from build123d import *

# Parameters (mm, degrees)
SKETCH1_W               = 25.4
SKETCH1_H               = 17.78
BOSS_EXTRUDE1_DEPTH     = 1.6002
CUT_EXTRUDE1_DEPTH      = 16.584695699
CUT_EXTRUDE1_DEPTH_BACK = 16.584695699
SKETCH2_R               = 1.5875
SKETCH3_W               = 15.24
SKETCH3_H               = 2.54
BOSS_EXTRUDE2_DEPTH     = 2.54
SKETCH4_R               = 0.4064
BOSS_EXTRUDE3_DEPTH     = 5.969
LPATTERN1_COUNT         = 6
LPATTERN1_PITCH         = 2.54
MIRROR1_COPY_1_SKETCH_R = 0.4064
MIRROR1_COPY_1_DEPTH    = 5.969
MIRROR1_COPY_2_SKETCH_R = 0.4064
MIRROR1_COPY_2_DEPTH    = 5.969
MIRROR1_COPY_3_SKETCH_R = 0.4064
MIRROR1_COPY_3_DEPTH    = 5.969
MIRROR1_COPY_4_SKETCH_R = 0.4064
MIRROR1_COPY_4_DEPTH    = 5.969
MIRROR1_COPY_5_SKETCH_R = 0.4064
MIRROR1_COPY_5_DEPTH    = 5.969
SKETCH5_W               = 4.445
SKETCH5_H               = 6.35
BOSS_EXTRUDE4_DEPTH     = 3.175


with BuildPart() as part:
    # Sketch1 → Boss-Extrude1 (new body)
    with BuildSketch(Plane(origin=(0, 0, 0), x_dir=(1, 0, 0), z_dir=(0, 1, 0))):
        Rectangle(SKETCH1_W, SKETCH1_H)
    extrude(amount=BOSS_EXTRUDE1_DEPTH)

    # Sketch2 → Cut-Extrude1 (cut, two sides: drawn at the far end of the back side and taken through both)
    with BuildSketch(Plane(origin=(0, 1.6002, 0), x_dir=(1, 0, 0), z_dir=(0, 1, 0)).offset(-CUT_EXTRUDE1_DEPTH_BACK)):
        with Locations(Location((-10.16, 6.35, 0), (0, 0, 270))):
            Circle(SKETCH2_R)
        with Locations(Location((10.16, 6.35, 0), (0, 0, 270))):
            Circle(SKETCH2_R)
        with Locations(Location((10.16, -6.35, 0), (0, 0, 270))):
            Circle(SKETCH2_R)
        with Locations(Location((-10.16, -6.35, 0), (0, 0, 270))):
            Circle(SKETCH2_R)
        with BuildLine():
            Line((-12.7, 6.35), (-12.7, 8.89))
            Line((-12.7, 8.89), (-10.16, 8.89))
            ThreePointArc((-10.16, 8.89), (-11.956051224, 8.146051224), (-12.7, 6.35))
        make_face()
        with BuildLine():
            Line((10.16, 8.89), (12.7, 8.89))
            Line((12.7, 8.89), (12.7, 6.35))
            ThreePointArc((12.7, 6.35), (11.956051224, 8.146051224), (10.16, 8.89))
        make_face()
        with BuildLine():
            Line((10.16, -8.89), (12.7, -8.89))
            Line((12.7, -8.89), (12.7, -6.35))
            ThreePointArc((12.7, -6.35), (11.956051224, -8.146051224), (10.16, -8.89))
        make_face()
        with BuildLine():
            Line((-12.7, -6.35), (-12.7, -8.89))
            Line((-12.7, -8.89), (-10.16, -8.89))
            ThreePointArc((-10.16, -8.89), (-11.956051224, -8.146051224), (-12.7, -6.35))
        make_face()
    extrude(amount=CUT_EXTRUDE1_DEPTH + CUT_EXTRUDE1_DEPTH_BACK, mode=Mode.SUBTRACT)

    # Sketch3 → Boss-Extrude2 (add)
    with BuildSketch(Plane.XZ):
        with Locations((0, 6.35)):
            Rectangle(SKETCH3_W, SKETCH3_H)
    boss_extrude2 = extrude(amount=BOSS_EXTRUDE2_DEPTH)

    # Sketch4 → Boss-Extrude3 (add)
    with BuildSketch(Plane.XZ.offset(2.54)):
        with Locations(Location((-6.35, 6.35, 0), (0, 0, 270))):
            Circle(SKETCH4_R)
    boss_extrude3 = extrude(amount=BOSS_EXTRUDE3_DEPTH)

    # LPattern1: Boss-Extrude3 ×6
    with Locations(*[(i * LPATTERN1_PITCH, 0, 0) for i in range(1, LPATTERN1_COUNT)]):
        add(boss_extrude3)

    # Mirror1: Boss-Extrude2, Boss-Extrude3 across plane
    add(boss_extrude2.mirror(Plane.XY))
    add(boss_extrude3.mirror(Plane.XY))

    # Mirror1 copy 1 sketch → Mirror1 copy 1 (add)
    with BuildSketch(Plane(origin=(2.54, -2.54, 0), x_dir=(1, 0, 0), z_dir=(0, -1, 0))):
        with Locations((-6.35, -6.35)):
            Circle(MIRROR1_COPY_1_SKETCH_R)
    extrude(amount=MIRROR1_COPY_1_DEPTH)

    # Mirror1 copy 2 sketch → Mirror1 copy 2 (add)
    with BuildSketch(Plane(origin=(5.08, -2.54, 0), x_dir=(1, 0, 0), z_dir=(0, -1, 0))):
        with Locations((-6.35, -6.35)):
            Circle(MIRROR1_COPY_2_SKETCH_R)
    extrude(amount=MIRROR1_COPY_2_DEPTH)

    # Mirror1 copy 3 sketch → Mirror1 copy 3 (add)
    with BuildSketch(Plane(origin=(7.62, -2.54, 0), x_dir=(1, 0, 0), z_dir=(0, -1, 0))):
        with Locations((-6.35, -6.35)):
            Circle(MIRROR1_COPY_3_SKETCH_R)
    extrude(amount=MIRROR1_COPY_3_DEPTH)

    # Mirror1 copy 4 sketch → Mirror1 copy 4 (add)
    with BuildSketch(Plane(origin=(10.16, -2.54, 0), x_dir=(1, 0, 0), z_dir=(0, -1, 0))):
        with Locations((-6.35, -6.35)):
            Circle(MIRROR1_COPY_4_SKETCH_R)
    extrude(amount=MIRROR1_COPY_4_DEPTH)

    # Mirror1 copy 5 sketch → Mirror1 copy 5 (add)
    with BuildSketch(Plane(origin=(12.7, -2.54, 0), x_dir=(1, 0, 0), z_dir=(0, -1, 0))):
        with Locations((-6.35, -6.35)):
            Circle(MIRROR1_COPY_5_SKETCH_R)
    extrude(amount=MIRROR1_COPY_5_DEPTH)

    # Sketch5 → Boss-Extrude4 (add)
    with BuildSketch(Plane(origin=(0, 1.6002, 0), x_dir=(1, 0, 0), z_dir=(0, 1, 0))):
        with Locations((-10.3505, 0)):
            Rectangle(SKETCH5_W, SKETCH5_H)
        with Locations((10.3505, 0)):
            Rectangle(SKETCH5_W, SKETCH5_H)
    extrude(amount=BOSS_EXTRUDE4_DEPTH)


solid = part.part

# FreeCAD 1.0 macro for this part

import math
import FreeCAD as App
import Part
import Sketcher

V = App.Vector
Q = App.Units.Quantity


def add_polygon(sketch, points):
    """Adds a closed chain of lines whose ends are joined by coincident constraints."""
    first, n = sketch.GeometryCount, len(points)
    for a, b in zip(points, points[1:] + points[:1]):
        sketch.addGeometry(Part.LineSegment(App.Vector(*a, 0), App.Vector(*b, 0)), False)
    for i in range(n):
        sketch.addConstraint(Sketcher.Constraint("Coincident", first + i, 2, first + (i + 1) % n, 1))

doc = App.newDocument("Part")
body = doc.addObject("PartDesign::Body", "Body")

# Sketch on XZ plane
sketch1 = doc.addObject("Sketcher::SketchObject", "Sketch")
body.addObject(sketch1)
sketch1.AttachmentSupport = (doc.XZ_Plane, [""])
sketch1.MapMode = "FlatFace"
add_polygon(sketch1, [(-13, -9), (-13, 9), (13, 9), (13, -9)])  # lines 0-3
sketch1.addConstraint([
    Sketcher.Constraint("Vertical", 0),
    Sketcher.Constraint("Horizontal", 1),
    Sketcher.Constraint("Vertical", 2),
    Sketcher.Constraint("Horizontal", 3),
    Sketcher.Constraint("Symmetric", 0, 2, 2, 2, -1, 1),
    Sketcher.Constraint("DistanceX", 1, 1, 1, 2, Q("1 in")),
    Sketcher.Constraint("DistanceY", 0, 1, 0, 2, Q("0.7 in")),
])
pad1 = doc.addObject("PartDesign::Pad", "Pad")
body.addObject(pad1)
pad1.Profile = sketch1
pad1.Length = Q("0.063 in")
pad1.Reversed = True

# Sketch on XZ plane
sketch2 = doc.addObject("Sketcher::SketchObject", "Sketch001")
body.addObject(sketch2)
sketch2.AttachmentSupport = (doc.XZ_Plane, [""])
sketch2.MapMode = "FlatFace"
sketch2.AttachmentOffset = App.Placement(V(0, 0, -0.063 * 25.4), App.Rotation())
sketch2.addGeometry([
    Part.Circle(V(-10.2, -6.3, 0), V(0, 0, 1), 1.6),  # 0
    Part.Circle(V(10.2, -6.3, 0), V(0, 0, 1), 1.6),  # 1
    Part.Circle(V(10.2, 6.3, 0), V(0, 0, 1), 1.6),  # 2
    Part.Circle(V(-10.2, 6.3, 0), V(0, 0, 1), 1.6),  # 3
    Part.LineSegment(V(-12.7, -8.9, 0), V(-12.7, -6.3, 0)),  # 4
    Part.ArcOfCircle(Part.Circle(V(-10.2, -6.3, 0), V(0, 0, 1), 2.5), math.radians(-180), math.radians(-90)),  # 5
    Part.LineSegment(V(-10.2, -8.9, 0), V(-12.7, -8.9, 0)),  # 6
    Part.LineSegment(V(12.7, -8.9, 0), V(10.2, -8.9, 0)),  # 7
    Part.ArcOfCircle(Part.Circle(V(10.2, -6.3, 0), V(0, 0, 1), 2.5), math.radians(-90), math.radians(0)),  # 8
    Part.LineSegment(V(12.7, -6.3, 0), V(12.7, -8.9, 0)),  # 9
    Part.LineSegment(V(10.2, 8.9, 0), V(12.7, 8.9, 0)),  # 10
    Part.LineSegment(V(12.7, 8.9, 0), V(12.7, 6.3, 0)),  # 11
    Part.ArcOfCircle(Part.Circle(V(10.2, 6.3, 0), V(0, 0, 1), 2.5), math.radians(0), math.radians(90)),  # 12
    Part.LineSegment(V(-12.7, 6.3, 0), V(-12.7, 8.9, 0)),  # 13
    Part.LineSegment(V(-12.7, 8.9, 0), V(-10.2, 8.9, 0)),  # 14
    Part.ArcOfCircle(Part.Circle(V(-10.2, 6.3, 0), V(0, 0, 1), 2.5), math.radians(90), math.radians(180)),  # 15
], False)
sketch2.addConstraint([
    Sketcher.Constraint("Tangent", 4, 2, 5, 1),
    Sketcher.Constraint("Tangent", 5, 2, 6, 1),
    Sketcher.Constraint("Coincident", 6, 2, 4, 1),
    Sketcher.Constraint("Tangent", 7, 2, 8, 1),
    Sketcher.Constraint("Tangent", 8, 2, 9, 1),
    Sketcher.Constraint("Coincident", 9, 2, 7, 1),
    Sketcher.Constraint("Coincident", 10, 2, 11, 1),
    Sketcher.Constraint("Tangent", 11, 2, 12, 1),
    Sketcher.Constraint("Tangent", 12, 2, 10, 1),
    Sketcher.Constraint("Coincident", 13, 2, 14, 1),
    Sketcher.Constraint("Tangent", 14, 2, 15, 1),
    Sketcher.Constraint("Tangent", 15, 2, 13, 1),
    Sketcher.Constraint("Vertical", 4),
    Sketcher.Constraint("Horizontal", 6),
    Sketcher.Constraint("Horizontal", 7),
    Sketcher.Constraint("Vertical", 9),
    Sketcher.Constraint("Horizontal", 10),
    Sketcher.Constraint("Vertical", 11),
    Sketcher.Constraint("Vertical", 13),
    Sketcher.Constraint("Horizontal", 14),
    Sketcher.Constraint("Coincident", 5, 3, 0, 3),
    Sketcher.Constraint("Coincident", 8, 3, 1, 3),
    Sketcher.Constraint("Coincident", 12, 3, 2, 3),
    Sketcher.Constraint("Coincident", 15, 3, 3, 3),
    Sketcher.Constraint("Equal", 0, 1),
    Sketcher.Constraint("Equal", 1, 2),
    Sketcher.Constraint("Equal", 2, 3),
    Sketcher.Constraint("Equal", 5, 8),
    Sketcher.Constraint("Equal", 8, 12),
    Sketcher.Constraint("Equal", 12, 15),
    Sketcher.Constraint("Symmetric", 0, 3, 2, 3, -1, 1),
    Sketcher.Constraint("Symmetric", 1, 3, 3, 3, -1, 1),
    Sketcher.Constraint("Symmetric", 0, 3, 1, 3, -2),
    Sketcher.Constraint("Radius", 5, Q("0.1 in")),
    Sketcher.Constraint("Diameter", 0, Q("0.125 in")),
    Sketcher.Constraint("DistanceX", 0, 3, -1, 1, Q("0.4 in")),
    Sketcher.Constraint("DistanceY", 1, 3, 2, 3, Q("0.5 in")),
])
pocket1 = doc.addObject("PartDesign::Pocket", "Pocket")
body.addObject(pocket1)
pocket1.Profile = sketch2
pocket1.Type = "ThroughAll"
pocket1.Midplane = True

# Sketch on XZ plane
sketch3 = doc.addObject("Sketcher::SketchObject", "Sketch002")
body.addObject(sketch3)
sketch3.AttachmentSupport = (doc.XZ_Plane, [""])
sketch3.MapMode = "FlatFace"
add_polygon(sketch3, [(-7.6, 7.6), (-7.6, 5.1), (7.6, 5.1), (7.6, 7.6)])  # lines 0-3
sketch3.addConstraint([
    Sketcher.Constraint("Vertical", 0),
    Sketcher.Constraint("Horizontal", 1),
    Sketcher.Constraint("Vertical", 2),
    Sketcher.Constraint("Horizontal", 3),
    Sketcher.Constraint("DistanceX", 1, 1, 1, 2, Q("0.6 in")),
    Sketcher.Constraint("DistanceY", 0, 2, 0, 1, Q("0.1 in")),
    Sketcher.Constraint("DistanceX", 0, 2, -1, 1, Q("0.3 in")),
    Sketcher.Constraint("DistanceY", -1, 1, 0, 2, Q("0.2 in")),
])
pad2 = doc.addObject("PartDesign::Pad", "Pad001")
body.addObject(pad2)
pad2.Profile = sketch3
pad2.Length = Q("0.1 in")

# Sketch on XZ plane
sketch4 = doc.addObject("Sketcher::SketchObject", "Sketch003")
body.addObject(sketch4)
sketch4.AttachmentSupport = (doc.XZ_Plane, [""])
sketch4.MapMode = "FlatFace"
sketch4.AttachmentOffset = App.Placement(V(0, 0, 0.1 * 25.4), App.Rotation())
sketch4.addGeometry(Part.Circle(V(-6.35, 6.35, 0), V(0, 0, 1), 0.41), False)
sketch4.addConstraint([
    Sketcher.Constraint("Diameter", 0, Q("0.032 in")),
    Sketcher.Constraint("DistanceX", 0, 3, -1, 1, Q("0.25 in")),
    Sketcher.Constraint("DistanceY", -1, 1, 0, 3, Q("0.25 in")),
])
pad3 = doc.addObject("PartDesign::Pad", "Pad002")
body.addObject(pad3)
pad3.Profile = sketch4
pad3.Length = Q("0.235 in")
doc.recompute()

linearpattern = doc.addObject("PartDesign::LinearPattern", "LinearPattern")
body.addObject(linearpattern)
linearpattern.Originals = [pad3]
linearpattern.Direction = (doc.X_Axis, [""])
linearpattern.Mode = "offset"
linearpattern.Offset = Q("0.1 in")
linearpattern.Occurrences = 6
body.Tip = linearpattern
doc.recompute()

mirrored = doc.addObject("PartDesign::Mirrored", "Mirrored")
body.addObject(mirrored)
mirrored.Originals = [pad2, pad3]
mirrored.MirrorPlane = (doc.XY_Plane, [""])
body.Tip = mirrored

# Sketch on XZ plane
sketch5 = doc.addObject("Sketcher::SketchObject", "Sketch004")
body.addObject(sketch5)
sketch5.AttachmentSupport = (doc.XZ_Plane, [""])
sketch5.MapMode = "FlatFace"
sketch5.AttachmentOffset = App.Placement(V(0, 0, 0.1 * 25.4), App.Rotation())
sketch5.addGeometry(Part.Circle(V(-3.81, -6.35, 0), V(0, 0, 1), 0.41), False)
sketch5.addConstraint([
    Sketcher.Constraint("Diameter", 0, Q("0.032 in")),
    Sketcher.Constraint("DistanceX", 0, 3, -1, 1, Q("0.15 in")),
    Sketcher.Constraint("DistanceY", 0, 3, -1, 1, Q("0.25 in")),
])
pad4 = doc.addObject("PartDesign::Pad", "Pad003")
body.addObject(pad4)
pad4.Profile = sketch5
pad4.Length = Q("0.235 in")

# Sketch on XZ plane
sketch6 = doc.addObject("Sketcher::SketchObject", "Sketch005")
body.addObject(sketch6)
sketch6.AttachmentSupport = (doc.XZ_Plane, [""])
sketch6.MapMode = "FlatFace"
sketch6.AttachmentOffset = App.Placement(V(0, 0, 0.1 * 25.4), App.Rotation())
sketch6.addGeometry(Part.Circle(V(-1.27, -6.35, 0), V(0, 0, 1), 0.41), False)
sketch6.addConstraint([
    Sketcher.Constraint("Diameter", 0, Q("0.032 in")),
    Sketcher.Constraint("DistanceX", 0, 3, -1, 1, Q("0.05 in")),
    Sketcher.Constraint("DistanceY", 0, 3, -1, 1, Q("0.25 in")),
])
pad5 = doc.addObject("PartDesign::Pad", "Pad004")
body.addObject(pad5)
pad5.Profile = sketch6
pad5.Length = Q("0.235 in")

# Sketch on XZ plane
sketch7 = doc.addObject("Sketcher::SketchObject", "Sketch006")
body.addObject(sketch7)
sketch7.AttachmentSupport = (doc.XZ_Plane, [""])
sketch7.MapMode = "FlatFace"
sketch7.AttachmentOffset = App.Placement(V(0, 0, 0.1 * 25.4), App.Rotation())
sketch7.addGeometry(Part.Circle(V(1.27, -6.35, 0), V(0, 0, 1), 0.41), False)
sketch7.addConstraint([
    Sketcher.Constraint("Diameter", 0, Q("0.032 in")),
    Sketcher.Constraint("DistanceX", -1, 1, 0, 3, Q("0.05 in")),
    Sketcher.Constraint("DistanceY", 0, 3, -1, 1, Q("0.25 in")),
])
pad6 = doc.addObject("PartDesign::Pad", "Pad005")
body.addObject(pad6)
pad6.Profile = sketch7
pad6.Length = Q("0.235 in")

# Sketch on XZ plane
sketch8 = doc.addObject("Sketcher::SketchObject", "Sketch007")
body.addObject(sketch8)
sketch8.AttachmentSupport = (doc.XZ_Plane, [""])
sketch8.MapMode = "FlatFace"
sketch8.AttachmentOffset = App.Placement(V(0, 0, 0.1 * 25.4), App.Rotation())
sketch8.addGeometry(Part.Circle(V(3.81, -6.35, 0), V(0, 0, 1), 0.41), False)
sketch8.addConstraint([
    Sketcher.Constraint("Diameter", 0, Q("0.032 in")),
    Sketcher.Constraint("DistanceX", -1, 1, 0, 3, Q("0.15 in")),
    Sketcher.Constraint("DistanceY", 0, 3, -1, 1, Q("0.25 in")),
])
pad7 = doc.addObject("PartDesign::Pad", "Pad006")
body.addObject(pad7)
pad7.Profile = sketch8
pad7.Length = Q("0.235 in")

# Sketch on XZ plane
sketch9 = doc.addObject("Sketcher::SketchObject", "Sketch008")
body.addObject(sketch9)
sketch9.AttachmentSupport = (doc.XZ_Plane, [""])
sketch9.MapMode = "FlatFace"
sketch9.AttachmentOffset = App.Placement(V(0, 0, 0.1 * 25.4), App.Rotation())
sketch9.addGeometry(Part.Circle(V(6.35, -6.35, 0), V(0, 0, 1), 0.41), False)
sketch9.addConstraint([
    Sketcher.Constraint("Diameter", 0, Q("0.032 in")),
    Sketcher.Constraint("DistanceX", -1, 1, 0, 3, Q("0.25 in")),
    Sketcher.Constraint("DistanceY", 0, 3, -1, 1, Q("0.25 in")),
])
pad8 = doc.addObject("PartDesign::Pad", "Pad007")
body.addObject(pad8)
pad8.Profile = sketch9
pad8.Length = Q("0.235 in")

# Sketch on XZ plane
sketch10 = doc.addObject("Sketcher::SketchObject", "Sketch009")
body.addObject(sketch10)
sketch10.AttachmentSupport = (doc.XZ_Plane, [""])
sketch10.MapMode = "FlatFace"
sketch10.AttachmentOffset = App.Placement(V(0, 0, -0.063 * 25.4), App.Rotation())
add_polygon(sketch10, [(-12.6, -3.2), (-12.6, 3.2), (-8.1, 3.2), (-8.1, -3.2)])  # lines 0-3
add_polygon(sketch10, [(8.1, -3.2), (8.1, 3.2), (12.6, 3.2), (12.6, -3.2)])  # lines 4-7
sketch10.addConstraint([
    Sketcher.Constraint("Vertical", 0),
    Sketcher.Constraint("Horizontal", 1),
    Sketcher.Constraint("Vertical", 2),
    Sketcher.Constraint("Horizontal", 3),
    Sketcher.Constraint("Vertical", 4),
    Sketcher.Constraint("Horizontal", 5),
    Sketcher.Constraint("Vertical", 6),
    Sketcher.Constraint("Horizontal", 7),
    Sketcher.Constraint("Symmetric", 2, 2, 4, 2, -1, 1),
    Sketcher.Constraint("Symmetric", 0, 2, 6, 2, -1, 1),
    Sketcher.Constraint("Horizontal", 1, 2, 4, 2),
    Sketcher.Constraint("DistanceY", 0, 1, 0, 2, Q("0.25 in")),
    Sketcher.Constraint("DistanceX", 1, 1, 1, 2, Q("0.175 in")),
    Sketcher.Constraint("DistanceX", 1, 2, -1, 1, Q("0.32 in")),
])
pad9 = doc.addObject("PartDesign::Pad", "Pad008")
body.addObject(pad9)
pad9.Profile = sketch10
pad9.Length = Q("0.125 in")
pad9.Reversed = True

doc.recompute()
